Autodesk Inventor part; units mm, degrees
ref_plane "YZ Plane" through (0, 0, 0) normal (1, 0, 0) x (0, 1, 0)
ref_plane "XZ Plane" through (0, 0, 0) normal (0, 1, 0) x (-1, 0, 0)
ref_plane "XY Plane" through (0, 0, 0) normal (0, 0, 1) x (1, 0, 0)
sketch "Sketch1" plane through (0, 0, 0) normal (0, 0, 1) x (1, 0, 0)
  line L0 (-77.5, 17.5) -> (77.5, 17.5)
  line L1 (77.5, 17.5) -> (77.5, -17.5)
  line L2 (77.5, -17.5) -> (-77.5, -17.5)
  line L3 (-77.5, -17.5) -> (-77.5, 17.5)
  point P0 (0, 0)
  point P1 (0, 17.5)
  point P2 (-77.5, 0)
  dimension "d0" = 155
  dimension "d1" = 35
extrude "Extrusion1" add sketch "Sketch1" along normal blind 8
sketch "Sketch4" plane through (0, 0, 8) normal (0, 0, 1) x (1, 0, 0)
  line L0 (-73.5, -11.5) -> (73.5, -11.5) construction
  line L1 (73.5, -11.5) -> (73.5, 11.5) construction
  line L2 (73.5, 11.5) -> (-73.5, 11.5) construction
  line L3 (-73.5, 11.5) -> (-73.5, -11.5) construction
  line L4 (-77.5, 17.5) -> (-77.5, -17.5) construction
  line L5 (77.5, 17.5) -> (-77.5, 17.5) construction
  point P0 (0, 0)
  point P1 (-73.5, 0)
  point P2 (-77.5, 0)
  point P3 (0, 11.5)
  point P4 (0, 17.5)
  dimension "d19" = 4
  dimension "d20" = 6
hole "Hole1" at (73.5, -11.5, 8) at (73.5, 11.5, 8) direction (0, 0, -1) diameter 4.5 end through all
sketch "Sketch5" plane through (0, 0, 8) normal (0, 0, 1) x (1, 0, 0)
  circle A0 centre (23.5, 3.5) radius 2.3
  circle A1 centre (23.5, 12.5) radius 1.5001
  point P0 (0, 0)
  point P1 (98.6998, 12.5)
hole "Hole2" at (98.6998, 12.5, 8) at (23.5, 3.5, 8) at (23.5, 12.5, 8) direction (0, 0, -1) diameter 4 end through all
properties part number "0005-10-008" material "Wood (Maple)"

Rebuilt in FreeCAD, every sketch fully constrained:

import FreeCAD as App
import Part
import Sketcher

V = App.Vector
Q = App.Units.Quantity

doc = App.newDocument("Part")
body = doc.addObject("PartDesign::Body", "Body")

sketch1 = body.newObject("Sketcher::SketchObject", "Sketch")
sketch1.AttachmentSupport = (doc.getObject("XY_Plane"), [""])
sketch1.MapMode = "FlatFace"
sketch1.addGeometry([
    Part.LineSegment(V(78, 18, 0), V(-78, 18, 0)),
    Part.LineSegment(V(-78, 18, 0), V(-78, -18, 0)),
    Part.LineSegment(V(-78, -18, 0), V(78, -18, 0)),
    Part.LineSegment(V(78, -18, 0), V(78, 18, 0)),
], False)
sketch1.addConstraint([
    Sketcher.Constraint("Coincident", 0, 2, 1, 1),
    Sketcher.Constraint("Coincident", 1, 2, 2, 1),
    Sketcher.Constraint("Coincident", 2, 2, 3, 1),
    Sketcher.Constraint("Coincident", 3, 2, 0, 1),
    Sketcher.Constraint("Horizontal", 0),
    Sketcher.Constraint("Vertical", 1),
    Sketcher.Constraint("Horizontal", 2),
    Sketcher.Constraint("Vertical", 3),
    Sketcher.Constraint("Symmetric", 0, 2, 2, 2, -1, 1),
    Sketcher.Constraint("DistanceX", 0, 2, 0, 1, Q("155 mm")),
    Sketcher.Constraint("DistanceY", 1, 2, 1, 1, Q("35 mm")),
])
pad1 = body.newObject("PartDesign::Pad", "Pad")
pad1.Profile = sketch1
pad1.Length = 8

sketch2 = body.newObject("Sketcher::SketchObject", "Sketch001")
sketch2.AttachmentSupport = (doc.getObject("XY_Plane"), [""])
sketch2.MapMode = "FlatFace"
sketch2.AttachmentOffset = App.Placement(V(0, 0, 8), App.Rotation())
sketch2.addGeometry([
    Part.Circle(V(73.5, -11.5, 0), V(0, 0, 1), 2.2),
    Part.Circle(V(73.5, 11.5, 0), V(0, 0, 1), 2.2),
], False)
sketch2.addConstraint([
    Sketcher.Constraint("Equal", 0, 1),
    Sketcher.Constraint("Symmetric", 0, 3, 1, 3, -1),
    Sketcher.Constraint("Diameter", 0, Q("4.5 mm")),
    Sketcher.Constraint("DistanceY", 0, 3, 1, 3, Q("23 mm")),
    Sketcher.Constraint("DistanceX", -1, 1, 0, 3, Q("73.5 mm")),
])
doc.recompute()
hole = body.newObject("PartDesign::Hole", "Hole")
hole.Profile = sketch2
hole.ThreadType = "None"
hole.Diameter = 4.5
hole.DepthType = "ThroughAll"

sketch3 = body.newObject("Sketcher::SketchObject", "Sketch002")
sketch3.AttachmentSupport = (doc.getObject("XY_Plane"), [""])
sketch3.MapMode = "FlatFace"
sketch3.AttachmentOffset = App.Placement(V(0, 0, 8), App.Rotation())
sketch3.addGeometry([
    Part.Circle(V(98.7, 12.5, 0), V(0, 0, 1), 2),
    Part.Circle(V(23.5, 3.5, 0), V(0, 0, 1), 2),
    Part.Circle(V(23.5, 12.5, 0), V(0, 0, 1), 2),
], False)
sketch3.addConstraint([
    Sketcher.Constraint("Equal", 0, 1),
    Sketcher.Constraint("Equal", 1, 2),
    Sketcher.Constraint("Horizontal", 0, 3, 2, 3),
    Sketcher.Constraint("Vertical", 1, 3, 2, 3),
    Sketcher.Constraint("Diameter", 0, Q("4 mm")),
    Sketcher.Constraint("DistanceY", 1, 3, 0, 3, Q("9 mm")),
    Sketcher.Constraint("DistanceY", -1, 1, 0, 3, Q("12.5 mm")),
    Sketcher.Constraint("DistanceX", -1, 1, 1, 3, Q("23.5 mm")),
    Sketcher.Constraint("DistanceX", -1, 1, 0, 3, Q("98.6998 mm")),
])
doc.recompute()
hole2 = body.newObject("PartDesign::Hole", "Hole001")
hole2.Profile = sketch3
hole2.ThreadType = "None"
hole2.Diameter = 4
hole2.DepthType = "ThroughAll"

doc.recompute()
